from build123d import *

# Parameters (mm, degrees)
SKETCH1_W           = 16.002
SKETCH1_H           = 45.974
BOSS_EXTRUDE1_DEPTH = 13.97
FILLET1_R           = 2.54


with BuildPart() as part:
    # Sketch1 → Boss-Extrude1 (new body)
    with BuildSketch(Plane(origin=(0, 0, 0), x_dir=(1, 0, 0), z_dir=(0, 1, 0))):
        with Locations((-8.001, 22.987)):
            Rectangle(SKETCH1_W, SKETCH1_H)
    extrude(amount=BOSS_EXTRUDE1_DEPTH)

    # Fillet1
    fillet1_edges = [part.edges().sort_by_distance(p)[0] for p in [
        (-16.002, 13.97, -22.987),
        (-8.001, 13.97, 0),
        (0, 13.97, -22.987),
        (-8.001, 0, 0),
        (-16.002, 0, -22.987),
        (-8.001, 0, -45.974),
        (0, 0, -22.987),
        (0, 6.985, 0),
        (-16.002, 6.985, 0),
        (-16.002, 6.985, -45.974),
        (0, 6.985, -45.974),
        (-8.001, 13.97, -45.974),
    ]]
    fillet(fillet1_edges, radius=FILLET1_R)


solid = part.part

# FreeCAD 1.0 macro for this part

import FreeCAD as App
import Part
import Sketcher

V = App.Vector
Q = App.Units.Quantity


def add_polygon(sketch, points):
    """Adds a closed chain of lines whose ends are joined by coincident constraints."""
    first, n = sketch.GeometryCount, len(points)
    for a, b in zip(points, points[1:] + points[:1]):
        sketch.addGeometry(Part.LineSegment(App.Vector(*a, 0), App.Vector(*b, 0)), False)
    for i in range(n):
        sketch.addConstraint(Sketcher.Constraint("Coincident", first + i, 2, first + (i + 1) % n, 1))

doc = App.newDocument("Part")
body = doc.addObject("PartDesign::Body", "Body")

# Sketch on XZ plane
sketch1 = body.newObject("Sketcher::SketchObject", "Sketch")
sketch1.AttachmentSupport = (doc.getObject("XZ_Plane"), [""])
sketch1.MapMode = "FlatFace"
add_polygon(sketch1, [(-16, -46), (-16, 0), (0, 0), (0, -46)])  # lines 0-3
sketch1.addConstraint(Sketcher.Constraint("Vertical", 0))
sketch1.addConstraint(Sketcher.Constraint("Horizontal", 1))
sketch1.addConstraint(Sketcher.Constraint("Vertical", 2))
sketch1.addConstraint(Sketcher.Constraint("Horizontal", 3))
sketch1.addConstraint(Sketcher.Constraint("Coincident", 1, 2, -1, 1))
sketch1.addConstraint(Sketcher.Constraint("DistanceX", 1, 1, 1, 2, Q("0.63 in")))
sketch1.addConstraint(Sketcher.Constraint("DistanceY", 0, 1, 0, 2, Q("1.81 in")))
pad1 = body.newObject("PartDesign::Pad", "Pad")
pad1.Profile = sketch1
pad1.Length = Q("0.55 in")
pad1.Reversed = True
doc.recompute()

fillet = body.newObject("PartDesign::Fillet", "Fillet")
fillet.Base = (pad1, ["Edge1"])
fillet.UseAllEdges = True
fillet.Radius = Q("0.1 in")

doc.recompute()
